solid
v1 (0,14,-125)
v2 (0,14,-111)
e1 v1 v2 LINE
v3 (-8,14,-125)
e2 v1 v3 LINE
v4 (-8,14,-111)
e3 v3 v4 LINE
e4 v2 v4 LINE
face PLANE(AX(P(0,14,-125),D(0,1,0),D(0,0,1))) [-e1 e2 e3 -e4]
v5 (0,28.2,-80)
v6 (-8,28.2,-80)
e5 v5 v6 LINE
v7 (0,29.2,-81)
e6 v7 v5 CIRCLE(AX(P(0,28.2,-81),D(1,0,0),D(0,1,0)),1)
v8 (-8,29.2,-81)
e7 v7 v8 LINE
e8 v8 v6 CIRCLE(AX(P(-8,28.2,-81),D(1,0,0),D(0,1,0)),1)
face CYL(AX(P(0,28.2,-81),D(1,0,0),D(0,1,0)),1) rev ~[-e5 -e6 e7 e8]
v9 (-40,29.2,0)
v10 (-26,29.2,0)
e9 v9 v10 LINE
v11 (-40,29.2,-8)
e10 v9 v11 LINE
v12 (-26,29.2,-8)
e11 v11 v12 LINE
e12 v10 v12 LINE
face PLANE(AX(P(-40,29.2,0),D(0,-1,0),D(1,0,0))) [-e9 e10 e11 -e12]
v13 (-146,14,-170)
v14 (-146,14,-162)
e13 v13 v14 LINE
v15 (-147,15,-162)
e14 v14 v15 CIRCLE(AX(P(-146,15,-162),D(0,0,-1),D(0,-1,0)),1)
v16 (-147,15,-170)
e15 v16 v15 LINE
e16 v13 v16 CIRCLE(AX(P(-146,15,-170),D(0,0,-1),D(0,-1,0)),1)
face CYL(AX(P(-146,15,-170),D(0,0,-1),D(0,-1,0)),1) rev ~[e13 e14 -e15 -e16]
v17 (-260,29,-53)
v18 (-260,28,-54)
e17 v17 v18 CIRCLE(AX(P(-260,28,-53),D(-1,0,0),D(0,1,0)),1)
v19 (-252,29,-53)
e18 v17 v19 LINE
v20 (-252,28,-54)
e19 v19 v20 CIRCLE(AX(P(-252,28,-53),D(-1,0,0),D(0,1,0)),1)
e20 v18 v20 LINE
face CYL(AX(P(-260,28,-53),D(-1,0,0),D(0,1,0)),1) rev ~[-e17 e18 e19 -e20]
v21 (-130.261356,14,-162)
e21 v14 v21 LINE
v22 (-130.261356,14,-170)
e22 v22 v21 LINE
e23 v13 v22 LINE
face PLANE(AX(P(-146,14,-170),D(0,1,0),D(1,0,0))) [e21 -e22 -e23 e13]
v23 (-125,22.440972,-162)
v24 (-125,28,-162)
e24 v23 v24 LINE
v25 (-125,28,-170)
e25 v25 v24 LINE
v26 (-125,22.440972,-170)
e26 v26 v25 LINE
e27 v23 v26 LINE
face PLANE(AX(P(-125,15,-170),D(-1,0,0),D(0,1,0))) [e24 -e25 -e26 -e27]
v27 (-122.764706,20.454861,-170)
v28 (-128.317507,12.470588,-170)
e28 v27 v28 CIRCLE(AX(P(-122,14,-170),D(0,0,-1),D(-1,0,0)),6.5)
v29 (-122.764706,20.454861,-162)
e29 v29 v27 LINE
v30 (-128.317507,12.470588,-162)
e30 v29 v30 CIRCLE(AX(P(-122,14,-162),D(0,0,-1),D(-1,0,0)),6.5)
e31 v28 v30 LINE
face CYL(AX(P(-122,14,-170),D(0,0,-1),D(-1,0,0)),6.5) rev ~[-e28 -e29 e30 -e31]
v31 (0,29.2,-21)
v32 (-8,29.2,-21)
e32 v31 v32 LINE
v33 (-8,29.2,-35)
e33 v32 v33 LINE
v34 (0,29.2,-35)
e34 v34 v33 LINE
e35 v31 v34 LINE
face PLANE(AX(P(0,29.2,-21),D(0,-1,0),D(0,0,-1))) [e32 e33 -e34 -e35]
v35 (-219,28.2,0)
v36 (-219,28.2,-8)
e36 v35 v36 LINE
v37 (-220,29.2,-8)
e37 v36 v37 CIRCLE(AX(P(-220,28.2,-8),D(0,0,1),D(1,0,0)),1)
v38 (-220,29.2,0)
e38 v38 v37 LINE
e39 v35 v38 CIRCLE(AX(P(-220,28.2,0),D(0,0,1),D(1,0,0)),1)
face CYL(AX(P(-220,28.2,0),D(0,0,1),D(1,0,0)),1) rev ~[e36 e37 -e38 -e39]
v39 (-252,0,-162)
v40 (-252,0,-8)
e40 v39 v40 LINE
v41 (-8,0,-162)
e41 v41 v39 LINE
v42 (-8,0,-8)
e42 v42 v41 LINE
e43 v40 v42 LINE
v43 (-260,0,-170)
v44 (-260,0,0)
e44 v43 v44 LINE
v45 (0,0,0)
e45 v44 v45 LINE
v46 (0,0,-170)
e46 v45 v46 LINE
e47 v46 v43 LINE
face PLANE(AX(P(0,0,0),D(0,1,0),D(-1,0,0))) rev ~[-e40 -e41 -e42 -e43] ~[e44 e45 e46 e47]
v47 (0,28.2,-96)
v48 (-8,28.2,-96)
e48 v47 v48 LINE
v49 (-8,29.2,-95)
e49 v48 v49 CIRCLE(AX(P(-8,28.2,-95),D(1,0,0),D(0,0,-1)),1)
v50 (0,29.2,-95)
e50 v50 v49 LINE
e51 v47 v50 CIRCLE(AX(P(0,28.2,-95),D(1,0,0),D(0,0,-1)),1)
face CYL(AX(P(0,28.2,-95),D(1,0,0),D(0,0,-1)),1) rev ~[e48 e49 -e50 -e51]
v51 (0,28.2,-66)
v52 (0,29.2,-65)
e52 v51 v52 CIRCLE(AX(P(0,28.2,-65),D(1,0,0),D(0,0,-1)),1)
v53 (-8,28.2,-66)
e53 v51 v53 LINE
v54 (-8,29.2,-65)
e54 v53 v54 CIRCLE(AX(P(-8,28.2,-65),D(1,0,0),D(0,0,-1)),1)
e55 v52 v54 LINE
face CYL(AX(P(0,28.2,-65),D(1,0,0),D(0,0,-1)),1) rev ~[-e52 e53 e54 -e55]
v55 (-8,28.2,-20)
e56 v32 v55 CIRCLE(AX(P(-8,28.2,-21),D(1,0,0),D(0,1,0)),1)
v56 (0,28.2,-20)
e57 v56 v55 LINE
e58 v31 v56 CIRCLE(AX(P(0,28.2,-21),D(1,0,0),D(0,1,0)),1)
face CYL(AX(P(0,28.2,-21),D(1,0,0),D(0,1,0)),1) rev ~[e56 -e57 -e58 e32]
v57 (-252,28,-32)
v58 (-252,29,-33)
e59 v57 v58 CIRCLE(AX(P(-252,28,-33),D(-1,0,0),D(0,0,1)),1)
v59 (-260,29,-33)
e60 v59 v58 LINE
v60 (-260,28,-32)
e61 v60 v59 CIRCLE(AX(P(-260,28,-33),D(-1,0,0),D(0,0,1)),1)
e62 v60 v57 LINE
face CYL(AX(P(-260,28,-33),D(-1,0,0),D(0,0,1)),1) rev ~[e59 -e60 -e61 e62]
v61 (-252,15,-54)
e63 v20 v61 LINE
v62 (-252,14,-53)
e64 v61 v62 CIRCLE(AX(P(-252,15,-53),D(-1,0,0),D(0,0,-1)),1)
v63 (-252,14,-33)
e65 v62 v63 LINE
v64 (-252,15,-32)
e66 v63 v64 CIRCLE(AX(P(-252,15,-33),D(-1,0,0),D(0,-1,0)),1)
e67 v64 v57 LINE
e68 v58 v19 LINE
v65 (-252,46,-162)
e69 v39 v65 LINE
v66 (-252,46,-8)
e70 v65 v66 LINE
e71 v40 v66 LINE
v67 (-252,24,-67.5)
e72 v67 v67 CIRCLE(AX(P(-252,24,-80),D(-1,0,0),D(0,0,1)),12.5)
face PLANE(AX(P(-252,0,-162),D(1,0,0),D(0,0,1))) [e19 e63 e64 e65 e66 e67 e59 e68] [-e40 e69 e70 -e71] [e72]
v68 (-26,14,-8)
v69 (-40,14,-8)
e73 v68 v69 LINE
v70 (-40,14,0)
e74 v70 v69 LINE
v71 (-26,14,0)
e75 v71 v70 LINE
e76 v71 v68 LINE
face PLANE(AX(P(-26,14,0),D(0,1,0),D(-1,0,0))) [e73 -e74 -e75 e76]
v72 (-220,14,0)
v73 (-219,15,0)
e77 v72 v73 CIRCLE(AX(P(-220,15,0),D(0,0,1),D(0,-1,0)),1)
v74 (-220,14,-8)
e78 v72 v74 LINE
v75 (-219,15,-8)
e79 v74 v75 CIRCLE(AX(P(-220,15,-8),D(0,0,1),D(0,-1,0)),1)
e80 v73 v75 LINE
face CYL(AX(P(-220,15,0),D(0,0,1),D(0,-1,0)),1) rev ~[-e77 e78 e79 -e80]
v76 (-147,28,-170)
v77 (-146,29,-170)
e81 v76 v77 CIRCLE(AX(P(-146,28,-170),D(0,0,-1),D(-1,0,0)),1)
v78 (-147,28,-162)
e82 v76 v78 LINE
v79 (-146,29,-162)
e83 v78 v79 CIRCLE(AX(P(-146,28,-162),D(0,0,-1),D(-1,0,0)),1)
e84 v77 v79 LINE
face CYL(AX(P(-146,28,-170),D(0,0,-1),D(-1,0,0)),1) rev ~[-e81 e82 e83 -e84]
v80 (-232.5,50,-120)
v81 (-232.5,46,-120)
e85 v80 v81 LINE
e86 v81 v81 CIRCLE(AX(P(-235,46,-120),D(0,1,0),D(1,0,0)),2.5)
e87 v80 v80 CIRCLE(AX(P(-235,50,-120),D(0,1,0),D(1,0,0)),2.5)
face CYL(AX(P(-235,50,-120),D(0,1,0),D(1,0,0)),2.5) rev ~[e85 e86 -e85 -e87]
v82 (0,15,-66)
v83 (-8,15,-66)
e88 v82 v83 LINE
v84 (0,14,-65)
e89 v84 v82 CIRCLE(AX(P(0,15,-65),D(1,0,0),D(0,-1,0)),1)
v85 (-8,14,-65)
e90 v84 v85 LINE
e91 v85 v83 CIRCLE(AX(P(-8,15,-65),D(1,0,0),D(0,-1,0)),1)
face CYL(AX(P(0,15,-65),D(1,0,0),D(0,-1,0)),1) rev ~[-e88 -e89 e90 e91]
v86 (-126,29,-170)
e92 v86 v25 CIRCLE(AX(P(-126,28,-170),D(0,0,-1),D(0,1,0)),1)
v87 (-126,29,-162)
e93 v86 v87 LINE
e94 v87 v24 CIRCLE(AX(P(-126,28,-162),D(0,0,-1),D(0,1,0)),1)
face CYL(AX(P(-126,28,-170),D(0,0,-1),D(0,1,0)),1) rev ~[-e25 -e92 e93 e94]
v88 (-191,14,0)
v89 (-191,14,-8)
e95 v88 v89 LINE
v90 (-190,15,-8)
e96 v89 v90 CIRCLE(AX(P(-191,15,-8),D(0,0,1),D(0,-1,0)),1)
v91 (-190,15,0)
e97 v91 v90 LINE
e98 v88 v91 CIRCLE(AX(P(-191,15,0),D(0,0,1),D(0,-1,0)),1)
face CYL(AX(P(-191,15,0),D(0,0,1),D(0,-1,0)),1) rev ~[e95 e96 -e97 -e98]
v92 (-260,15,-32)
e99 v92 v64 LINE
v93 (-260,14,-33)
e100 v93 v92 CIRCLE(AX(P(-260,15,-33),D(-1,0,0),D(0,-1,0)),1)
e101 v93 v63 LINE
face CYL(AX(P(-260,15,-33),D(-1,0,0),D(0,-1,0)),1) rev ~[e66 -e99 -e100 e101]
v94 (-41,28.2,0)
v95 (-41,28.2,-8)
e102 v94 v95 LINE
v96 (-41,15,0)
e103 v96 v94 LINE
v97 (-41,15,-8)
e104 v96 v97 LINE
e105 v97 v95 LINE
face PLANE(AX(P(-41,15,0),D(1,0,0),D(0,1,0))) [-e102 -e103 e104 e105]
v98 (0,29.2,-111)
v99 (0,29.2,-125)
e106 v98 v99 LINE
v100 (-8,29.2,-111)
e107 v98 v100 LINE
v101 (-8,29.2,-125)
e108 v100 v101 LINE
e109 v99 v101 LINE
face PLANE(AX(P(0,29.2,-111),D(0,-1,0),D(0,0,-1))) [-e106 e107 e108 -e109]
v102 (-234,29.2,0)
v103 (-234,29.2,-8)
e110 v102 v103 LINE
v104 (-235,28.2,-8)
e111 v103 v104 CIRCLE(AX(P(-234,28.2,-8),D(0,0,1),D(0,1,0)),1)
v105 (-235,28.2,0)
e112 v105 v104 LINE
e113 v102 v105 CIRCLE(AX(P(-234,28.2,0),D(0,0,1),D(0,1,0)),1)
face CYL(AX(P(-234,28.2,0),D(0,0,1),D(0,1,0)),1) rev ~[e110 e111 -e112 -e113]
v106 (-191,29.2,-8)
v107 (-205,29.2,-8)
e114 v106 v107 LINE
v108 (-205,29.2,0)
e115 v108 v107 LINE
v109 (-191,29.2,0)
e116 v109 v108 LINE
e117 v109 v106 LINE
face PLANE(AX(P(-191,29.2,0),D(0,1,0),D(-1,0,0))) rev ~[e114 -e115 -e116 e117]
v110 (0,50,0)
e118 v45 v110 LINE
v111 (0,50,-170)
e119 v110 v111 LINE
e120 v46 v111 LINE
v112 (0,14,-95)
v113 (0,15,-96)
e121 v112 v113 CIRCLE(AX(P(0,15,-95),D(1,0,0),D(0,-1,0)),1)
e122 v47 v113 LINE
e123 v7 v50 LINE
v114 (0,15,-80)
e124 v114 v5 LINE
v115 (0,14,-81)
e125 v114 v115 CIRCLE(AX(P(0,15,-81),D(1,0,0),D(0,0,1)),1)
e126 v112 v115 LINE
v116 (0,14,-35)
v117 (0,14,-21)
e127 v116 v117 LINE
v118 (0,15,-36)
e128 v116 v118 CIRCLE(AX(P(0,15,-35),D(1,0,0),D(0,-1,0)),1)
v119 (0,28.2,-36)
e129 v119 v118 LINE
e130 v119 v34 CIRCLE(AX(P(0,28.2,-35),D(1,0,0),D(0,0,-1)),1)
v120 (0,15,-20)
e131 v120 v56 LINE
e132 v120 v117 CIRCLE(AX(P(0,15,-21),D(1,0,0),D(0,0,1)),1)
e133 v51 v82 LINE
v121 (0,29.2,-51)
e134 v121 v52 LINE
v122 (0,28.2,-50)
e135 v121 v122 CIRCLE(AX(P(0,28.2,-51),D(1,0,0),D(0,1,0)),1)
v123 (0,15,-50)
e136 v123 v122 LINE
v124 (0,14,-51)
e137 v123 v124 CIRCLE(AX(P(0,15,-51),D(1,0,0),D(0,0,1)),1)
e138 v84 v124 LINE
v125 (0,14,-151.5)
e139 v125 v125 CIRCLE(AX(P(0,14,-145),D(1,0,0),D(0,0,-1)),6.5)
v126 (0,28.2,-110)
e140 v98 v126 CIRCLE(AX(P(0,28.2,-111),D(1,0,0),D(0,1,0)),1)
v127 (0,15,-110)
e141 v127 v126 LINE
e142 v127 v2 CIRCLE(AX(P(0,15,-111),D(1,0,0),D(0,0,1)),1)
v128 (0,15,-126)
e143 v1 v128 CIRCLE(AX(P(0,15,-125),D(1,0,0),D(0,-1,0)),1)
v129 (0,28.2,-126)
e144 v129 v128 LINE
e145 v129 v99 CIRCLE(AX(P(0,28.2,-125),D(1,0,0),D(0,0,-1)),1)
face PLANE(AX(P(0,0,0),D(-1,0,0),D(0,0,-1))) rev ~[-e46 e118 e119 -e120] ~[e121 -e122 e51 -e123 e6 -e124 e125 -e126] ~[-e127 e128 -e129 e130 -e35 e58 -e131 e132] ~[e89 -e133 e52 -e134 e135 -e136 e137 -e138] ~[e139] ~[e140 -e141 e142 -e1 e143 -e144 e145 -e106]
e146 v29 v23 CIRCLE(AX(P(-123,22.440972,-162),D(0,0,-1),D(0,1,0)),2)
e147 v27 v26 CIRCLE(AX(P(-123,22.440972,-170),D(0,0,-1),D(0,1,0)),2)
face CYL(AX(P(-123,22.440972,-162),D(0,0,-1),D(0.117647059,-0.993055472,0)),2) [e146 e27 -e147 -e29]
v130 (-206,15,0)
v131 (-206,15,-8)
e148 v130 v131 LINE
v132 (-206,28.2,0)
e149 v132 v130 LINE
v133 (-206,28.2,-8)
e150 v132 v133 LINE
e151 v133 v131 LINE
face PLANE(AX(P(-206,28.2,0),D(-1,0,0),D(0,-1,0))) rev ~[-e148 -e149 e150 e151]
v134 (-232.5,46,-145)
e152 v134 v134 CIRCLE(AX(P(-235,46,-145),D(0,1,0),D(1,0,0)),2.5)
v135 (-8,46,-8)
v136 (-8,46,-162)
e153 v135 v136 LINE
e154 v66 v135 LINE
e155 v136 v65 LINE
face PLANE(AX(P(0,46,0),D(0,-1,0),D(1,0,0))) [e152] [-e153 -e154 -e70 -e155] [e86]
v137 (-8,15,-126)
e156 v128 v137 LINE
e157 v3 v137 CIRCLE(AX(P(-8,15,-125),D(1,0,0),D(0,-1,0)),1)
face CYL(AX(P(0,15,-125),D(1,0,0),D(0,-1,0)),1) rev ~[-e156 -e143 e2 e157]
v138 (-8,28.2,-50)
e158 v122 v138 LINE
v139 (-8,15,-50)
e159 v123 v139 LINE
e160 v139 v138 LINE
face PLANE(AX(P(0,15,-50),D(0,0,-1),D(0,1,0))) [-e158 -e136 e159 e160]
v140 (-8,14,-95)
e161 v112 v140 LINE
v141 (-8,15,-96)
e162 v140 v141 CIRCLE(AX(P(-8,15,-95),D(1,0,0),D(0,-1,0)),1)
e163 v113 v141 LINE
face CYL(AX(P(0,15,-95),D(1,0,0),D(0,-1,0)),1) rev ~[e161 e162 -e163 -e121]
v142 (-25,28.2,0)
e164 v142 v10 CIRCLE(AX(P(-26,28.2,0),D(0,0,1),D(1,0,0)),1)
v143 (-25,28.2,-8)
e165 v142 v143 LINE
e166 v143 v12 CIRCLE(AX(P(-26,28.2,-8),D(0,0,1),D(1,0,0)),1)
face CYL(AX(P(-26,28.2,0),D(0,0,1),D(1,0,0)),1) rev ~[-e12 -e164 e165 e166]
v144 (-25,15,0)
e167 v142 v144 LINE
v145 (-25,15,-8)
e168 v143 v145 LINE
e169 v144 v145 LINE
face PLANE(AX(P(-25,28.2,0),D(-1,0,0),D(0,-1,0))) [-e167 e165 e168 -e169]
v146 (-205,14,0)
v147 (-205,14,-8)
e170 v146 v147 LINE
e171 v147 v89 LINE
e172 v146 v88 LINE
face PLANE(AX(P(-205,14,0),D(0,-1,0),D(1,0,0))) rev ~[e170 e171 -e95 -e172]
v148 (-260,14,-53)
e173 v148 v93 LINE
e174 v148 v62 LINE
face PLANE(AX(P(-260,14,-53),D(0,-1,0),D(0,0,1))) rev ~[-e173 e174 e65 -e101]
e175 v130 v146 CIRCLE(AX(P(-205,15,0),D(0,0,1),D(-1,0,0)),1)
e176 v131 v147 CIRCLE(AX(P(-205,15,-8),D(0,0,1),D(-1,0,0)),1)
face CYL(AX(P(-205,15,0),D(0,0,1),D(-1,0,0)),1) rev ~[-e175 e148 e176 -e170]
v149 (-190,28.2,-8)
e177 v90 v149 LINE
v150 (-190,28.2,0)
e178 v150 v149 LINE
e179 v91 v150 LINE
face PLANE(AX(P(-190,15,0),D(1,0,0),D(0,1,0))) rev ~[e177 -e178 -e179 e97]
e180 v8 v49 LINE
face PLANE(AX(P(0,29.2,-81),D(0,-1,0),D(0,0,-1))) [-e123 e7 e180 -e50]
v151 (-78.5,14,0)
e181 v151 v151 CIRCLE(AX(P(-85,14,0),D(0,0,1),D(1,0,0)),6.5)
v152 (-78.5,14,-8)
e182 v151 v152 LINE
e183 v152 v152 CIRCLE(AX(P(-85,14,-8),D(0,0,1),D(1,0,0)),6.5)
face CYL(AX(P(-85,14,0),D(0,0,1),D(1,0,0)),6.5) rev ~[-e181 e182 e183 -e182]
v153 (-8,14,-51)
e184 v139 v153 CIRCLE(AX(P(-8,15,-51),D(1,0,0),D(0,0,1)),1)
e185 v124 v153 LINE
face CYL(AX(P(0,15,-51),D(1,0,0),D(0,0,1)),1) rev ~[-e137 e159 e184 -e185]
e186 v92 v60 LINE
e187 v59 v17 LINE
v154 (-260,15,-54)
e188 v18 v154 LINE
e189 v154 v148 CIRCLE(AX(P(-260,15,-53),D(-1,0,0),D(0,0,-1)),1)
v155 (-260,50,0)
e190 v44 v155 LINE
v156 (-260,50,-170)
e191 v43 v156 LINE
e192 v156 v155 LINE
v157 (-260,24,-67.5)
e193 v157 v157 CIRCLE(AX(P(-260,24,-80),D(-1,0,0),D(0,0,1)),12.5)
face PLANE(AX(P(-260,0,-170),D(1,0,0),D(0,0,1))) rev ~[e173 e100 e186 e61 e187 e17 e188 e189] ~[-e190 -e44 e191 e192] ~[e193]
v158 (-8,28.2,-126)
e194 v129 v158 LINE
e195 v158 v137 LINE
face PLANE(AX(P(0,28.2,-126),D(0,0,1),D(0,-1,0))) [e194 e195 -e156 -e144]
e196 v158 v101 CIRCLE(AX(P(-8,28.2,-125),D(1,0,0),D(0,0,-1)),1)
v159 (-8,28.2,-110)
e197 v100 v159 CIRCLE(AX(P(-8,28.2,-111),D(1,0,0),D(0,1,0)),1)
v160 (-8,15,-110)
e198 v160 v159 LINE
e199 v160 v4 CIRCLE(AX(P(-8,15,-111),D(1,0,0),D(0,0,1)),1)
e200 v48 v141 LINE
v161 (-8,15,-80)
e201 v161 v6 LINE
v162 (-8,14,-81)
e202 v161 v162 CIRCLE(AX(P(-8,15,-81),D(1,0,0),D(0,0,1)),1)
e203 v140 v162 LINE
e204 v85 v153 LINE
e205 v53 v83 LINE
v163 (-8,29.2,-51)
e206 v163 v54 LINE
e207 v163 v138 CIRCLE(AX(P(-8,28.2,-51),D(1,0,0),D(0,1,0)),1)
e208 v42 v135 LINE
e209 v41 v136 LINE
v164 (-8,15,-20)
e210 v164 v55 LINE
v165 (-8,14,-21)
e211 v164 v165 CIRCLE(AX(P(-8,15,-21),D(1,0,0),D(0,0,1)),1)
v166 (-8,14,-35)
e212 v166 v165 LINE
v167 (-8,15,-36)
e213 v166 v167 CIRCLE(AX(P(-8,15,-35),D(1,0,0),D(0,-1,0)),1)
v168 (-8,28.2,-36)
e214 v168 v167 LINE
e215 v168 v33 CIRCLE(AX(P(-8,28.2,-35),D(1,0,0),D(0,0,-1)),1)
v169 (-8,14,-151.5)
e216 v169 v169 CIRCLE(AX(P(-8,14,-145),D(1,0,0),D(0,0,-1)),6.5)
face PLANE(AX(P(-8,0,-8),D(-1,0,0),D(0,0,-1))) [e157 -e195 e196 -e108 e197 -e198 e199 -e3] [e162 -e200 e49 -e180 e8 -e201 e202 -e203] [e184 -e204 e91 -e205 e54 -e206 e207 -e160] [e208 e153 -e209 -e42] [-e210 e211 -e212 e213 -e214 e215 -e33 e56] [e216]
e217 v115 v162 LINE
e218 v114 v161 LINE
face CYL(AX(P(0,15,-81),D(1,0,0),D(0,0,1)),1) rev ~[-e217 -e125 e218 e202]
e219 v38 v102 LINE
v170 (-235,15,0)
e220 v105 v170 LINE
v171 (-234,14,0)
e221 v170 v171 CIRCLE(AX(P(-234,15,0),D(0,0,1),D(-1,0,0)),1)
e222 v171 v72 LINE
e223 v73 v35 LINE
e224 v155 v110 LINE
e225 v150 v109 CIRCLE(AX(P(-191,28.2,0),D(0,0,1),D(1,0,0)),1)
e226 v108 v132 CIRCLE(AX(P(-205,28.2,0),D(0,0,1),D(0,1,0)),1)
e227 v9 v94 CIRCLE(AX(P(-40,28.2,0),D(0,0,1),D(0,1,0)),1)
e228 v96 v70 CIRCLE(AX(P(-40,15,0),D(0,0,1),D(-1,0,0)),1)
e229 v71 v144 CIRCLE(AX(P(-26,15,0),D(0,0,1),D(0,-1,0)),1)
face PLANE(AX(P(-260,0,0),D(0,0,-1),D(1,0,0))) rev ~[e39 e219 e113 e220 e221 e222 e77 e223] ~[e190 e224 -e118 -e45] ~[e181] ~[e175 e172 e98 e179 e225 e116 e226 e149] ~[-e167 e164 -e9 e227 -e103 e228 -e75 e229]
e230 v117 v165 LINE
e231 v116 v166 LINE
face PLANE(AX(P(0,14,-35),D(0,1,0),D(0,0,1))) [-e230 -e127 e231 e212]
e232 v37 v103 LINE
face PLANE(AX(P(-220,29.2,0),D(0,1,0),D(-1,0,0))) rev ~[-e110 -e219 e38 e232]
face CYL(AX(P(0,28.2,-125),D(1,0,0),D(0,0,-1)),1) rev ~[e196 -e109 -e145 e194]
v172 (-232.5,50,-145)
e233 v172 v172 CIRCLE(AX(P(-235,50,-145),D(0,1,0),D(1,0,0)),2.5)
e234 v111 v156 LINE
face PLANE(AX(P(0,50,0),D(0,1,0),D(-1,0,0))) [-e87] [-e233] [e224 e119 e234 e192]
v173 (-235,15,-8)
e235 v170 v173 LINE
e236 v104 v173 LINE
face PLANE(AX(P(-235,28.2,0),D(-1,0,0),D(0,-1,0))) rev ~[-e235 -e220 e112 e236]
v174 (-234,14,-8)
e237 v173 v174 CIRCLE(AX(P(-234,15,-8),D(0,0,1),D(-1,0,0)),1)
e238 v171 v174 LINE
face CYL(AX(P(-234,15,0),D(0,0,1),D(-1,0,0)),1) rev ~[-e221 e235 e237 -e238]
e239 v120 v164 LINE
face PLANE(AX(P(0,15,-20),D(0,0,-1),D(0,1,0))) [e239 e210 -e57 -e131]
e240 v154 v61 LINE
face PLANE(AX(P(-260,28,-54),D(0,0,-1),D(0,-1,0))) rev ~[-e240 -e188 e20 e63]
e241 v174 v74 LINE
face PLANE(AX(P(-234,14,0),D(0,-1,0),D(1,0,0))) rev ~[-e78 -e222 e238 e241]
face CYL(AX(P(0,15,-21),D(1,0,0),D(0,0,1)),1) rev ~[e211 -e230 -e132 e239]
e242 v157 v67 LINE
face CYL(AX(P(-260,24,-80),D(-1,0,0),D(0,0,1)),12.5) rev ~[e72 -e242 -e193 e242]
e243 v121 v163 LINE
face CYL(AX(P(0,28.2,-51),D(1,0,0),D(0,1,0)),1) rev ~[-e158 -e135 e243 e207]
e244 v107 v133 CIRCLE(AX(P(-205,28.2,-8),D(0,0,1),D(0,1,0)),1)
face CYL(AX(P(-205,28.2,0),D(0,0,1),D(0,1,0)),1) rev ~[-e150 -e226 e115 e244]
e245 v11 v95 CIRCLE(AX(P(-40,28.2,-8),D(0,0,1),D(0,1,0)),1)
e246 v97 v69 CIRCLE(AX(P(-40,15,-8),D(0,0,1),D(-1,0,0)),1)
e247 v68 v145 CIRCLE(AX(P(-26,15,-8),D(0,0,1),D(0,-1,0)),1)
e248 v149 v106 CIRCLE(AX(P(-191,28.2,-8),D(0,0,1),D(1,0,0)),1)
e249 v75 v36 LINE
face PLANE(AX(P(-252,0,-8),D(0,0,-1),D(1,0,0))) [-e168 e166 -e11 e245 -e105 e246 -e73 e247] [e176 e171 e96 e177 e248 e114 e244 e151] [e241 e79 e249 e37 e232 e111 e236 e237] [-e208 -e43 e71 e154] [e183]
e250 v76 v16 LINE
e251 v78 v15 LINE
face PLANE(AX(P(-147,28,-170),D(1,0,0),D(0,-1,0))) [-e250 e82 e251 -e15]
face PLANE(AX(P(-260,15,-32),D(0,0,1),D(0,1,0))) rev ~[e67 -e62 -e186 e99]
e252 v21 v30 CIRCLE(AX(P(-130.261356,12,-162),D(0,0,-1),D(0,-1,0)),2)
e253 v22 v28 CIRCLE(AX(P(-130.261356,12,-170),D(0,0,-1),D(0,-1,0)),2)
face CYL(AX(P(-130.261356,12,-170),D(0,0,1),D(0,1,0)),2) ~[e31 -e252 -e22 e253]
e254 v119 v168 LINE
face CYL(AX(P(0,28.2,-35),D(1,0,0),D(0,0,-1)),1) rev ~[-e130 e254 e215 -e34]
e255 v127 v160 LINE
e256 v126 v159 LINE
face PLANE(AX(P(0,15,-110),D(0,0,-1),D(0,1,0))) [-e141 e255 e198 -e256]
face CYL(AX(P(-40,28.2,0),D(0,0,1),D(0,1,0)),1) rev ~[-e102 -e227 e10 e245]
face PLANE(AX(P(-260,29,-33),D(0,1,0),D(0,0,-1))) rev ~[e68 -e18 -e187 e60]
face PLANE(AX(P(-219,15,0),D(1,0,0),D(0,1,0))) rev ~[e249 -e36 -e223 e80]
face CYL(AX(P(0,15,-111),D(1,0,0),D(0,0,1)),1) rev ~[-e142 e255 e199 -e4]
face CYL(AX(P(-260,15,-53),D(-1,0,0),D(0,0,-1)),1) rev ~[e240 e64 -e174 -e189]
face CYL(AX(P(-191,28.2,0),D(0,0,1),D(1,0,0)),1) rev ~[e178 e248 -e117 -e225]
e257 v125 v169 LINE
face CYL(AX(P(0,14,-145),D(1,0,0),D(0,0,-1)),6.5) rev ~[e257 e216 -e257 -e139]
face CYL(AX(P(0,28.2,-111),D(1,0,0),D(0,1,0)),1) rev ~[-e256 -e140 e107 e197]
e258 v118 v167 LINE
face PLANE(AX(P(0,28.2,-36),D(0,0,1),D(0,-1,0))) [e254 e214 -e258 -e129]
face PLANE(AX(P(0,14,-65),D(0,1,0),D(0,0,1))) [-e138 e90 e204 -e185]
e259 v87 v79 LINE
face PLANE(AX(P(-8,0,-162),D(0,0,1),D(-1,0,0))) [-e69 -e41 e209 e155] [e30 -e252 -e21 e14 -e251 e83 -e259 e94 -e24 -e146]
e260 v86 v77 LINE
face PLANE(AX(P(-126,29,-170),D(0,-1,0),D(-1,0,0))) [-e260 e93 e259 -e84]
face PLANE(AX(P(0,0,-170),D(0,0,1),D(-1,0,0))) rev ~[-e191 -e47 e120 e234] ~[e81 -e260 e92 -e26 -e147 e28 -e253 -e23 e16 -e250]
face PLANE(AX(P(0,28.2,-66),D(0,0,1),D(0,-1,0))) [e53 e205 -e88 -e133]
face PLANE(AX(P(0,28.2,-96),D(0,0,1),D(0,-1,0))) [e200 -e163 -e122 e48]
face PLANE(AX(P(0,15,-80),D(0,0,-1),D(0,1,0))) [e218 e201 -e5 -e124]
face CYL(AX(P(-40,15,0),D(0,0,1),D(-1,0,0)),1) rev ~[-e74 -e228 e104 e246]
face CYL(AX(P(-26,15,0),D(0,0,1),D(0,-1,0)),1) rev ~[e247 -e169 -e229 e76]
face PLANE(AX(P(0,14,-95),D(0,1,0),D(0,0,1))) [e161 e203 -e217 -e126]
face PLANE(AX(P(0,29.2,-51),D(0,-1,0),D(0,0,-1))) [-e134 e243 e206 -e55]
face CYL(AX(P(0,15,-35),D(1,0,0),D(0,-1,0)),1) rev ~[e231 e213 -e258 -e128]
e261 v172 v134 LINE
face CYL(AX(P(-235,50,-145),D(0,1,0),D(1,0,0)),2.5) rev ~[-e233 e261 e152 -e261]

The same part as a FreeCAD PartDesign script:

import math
import FreeCAD as App
import Part
import Sketcher
from FreeCAD import Vector
Q = App.Units.Quantity


def edges_at(feature, points):
    """Names of the edges that pass closest to the given points."""
    edges = feature.Shape.Edges
    near = lambda p: min(range(len(edges)), key=lambda i: edges[i].distToShape(Part.Vertex(*p))[0])
    return sorted({f"Edge{near(p) + 1}" for p in points})


def add_polygon(sketch, points):
    """Adds a closed chain of lines whose ends are joined by coincident constraints."""
    first, n = sketch.GeometryCount, len(points)
    for a, b in zip(points, points[1:] + points[:1]):
        sketch.addGeometry(Part.LineSegment(App.Vector(*a, 0), App.Vector(*b, 0)), False)
    for i in range(n):
        sketch.addConstraint(Sketcher.Constraint("Coincident", first + i, 2, first + (i + 1) % n, 1))

doc = App.newDocument("Part")
body = doc.addObject("PartDesign::Body", "Body")

# Sketch on XZ plane
sketch1 = body.newObject("Sketcher::SketchObject", "Sketch")
sketch1.AttachmentSupport = (doc.getObject("XZ_Plane"), [""])
sketch1.MapMode = "FlatFace"
add_polygon(sketch1, [(0, 0), (0, -170), (-260, -170), (-260, 0)])  # lines 0-3
sketch1.addConstraint(Sketcher.Constraint("Vertical", 0))
sketch1.addConstraint(Sketcher.Constraint("Horizontal", 1))
sketch1.addConstraint(Sketcher.Constraint("Vertical", 2))
sketch1.addConstraint(Sketcher.Constraint("Horizontal", 3))
sketch1.addConstraint(Sketcher.Constraint("Coincident", 3, 2, -1, 1))
sketch1.addConstraint(Sketcher.Constraint("DistanceX", 1, 2, 1, 1, Q("260 mm")))
sketch1.addConstraint(Sketcher.Constraint("DistanceY", 0, 2, 0, 1, Q("170 mm")))
pad1 = body.newObject("PartDesign::Pad", "Pad")
pad1.Profile = sketch1
pad1.Length = 50
pad1.Reversed = True

# Sketch on YZ plane
sketch2 = body.newObject("Sketcher::SketchObject", "Sketch001")
sketch2.AttachmentSupport = (doc.getObject("YZ_Plane"), [""])
sketch2.MapMode = "FlatFace"
sketch2.addGeometry(Part.LineSegment(Vector(14, -21, 0), Vector(14, -35, 0)), False)
sketch2.addGeometry(Part.ArcOfCircle(Part.Circle(Vector(15, -35, 0), Vector(0, 0, 1), 1), math.radians(180), math.radians(270)), False)
sketch2.addGeometry(Part.LineSegment(Vector(15, -36, 0), Vector(28.2, -36, 0)), False)
sketch2.addGeometry(Part.ArcOfCircle(Part.Circle(Vector(28.2, -35, 0), Vector(0, 0, 1), 1), math.radians(-90), math.radians(0)), False)
sketch2.addGeometry(Part.LineSegment(Vector(29.2, -35, 0), Vector(29.2, -21, 0)), False)
sketch2.addGeometry(Part.ArcOfCircle(Part.Circle(Vector(28.2, -21, 0), Vector(0, 0, 1), 1), math.radians(0), math.radians(90)), False)
sketch2.addGeometry(Part.LineSegment(Vector(28.2, -20, 0), Vector(15, -20, 0)), False)
sketch2.addGeometry(Part.ArcOfCircle(Part.Circle(Vector(15, -21, 0), Vector(0, 0, 1), 1), math.radians(90), math.radians(180)), False)
sketch2.addGeometry(Part.LineSegment(Vector(14, -51, 0), Vector(14, -65, 0)), False)
sketch2.addGeometry(Part.ArcOfCircle(Part.Circle(Vector(15, -65, 0), Vector(0, 0, 1), 1), math.radians(180), math.radians(270)), False)
sketch2.addGeometry(Part.LineSegment(Vector(15, -66, 0), Vector(28.2, -66, 0)), False)
sketch2.addGeometry(Part.ArcOfCircle(Part.Circle(Vector(28.2, -65, 0), Vector(0, 0, 1), 1), math.radians(-90), math.radians(0)), False)
sketch2.addGeometry(Part.LineSegment(Vector(29.2, -65, 0), Vector(29.2, -51, 0)), False)
sketch2.addGeometry(Part.ArcOfCircle(Part.Circle(Vector(28.2, -51, 0), Vector(0, 0, 1), 1), math.radians(0), math.radians(90)), False)
sketch2.addGeometry(Part.LineSegment(Vector(28.2, -50, 0), Vector(15, -50, 0)), False)
sketch2.addGeometry(Part.ArcOfCircle(Part.Circle(Vector(15, -51, 0), Vector(0, 0, 1), 1), math.radians(90), math.radians(180)), False)
sketch2.addGeometry(Part.LineSegment(Vector(14, -81, 0), Vector(14, -95, 0)), False)
sketch2.addGeometry(Part.ArcOfCircle(Part.Circle(Vector(15, -95, 0), Vector(0, 0, 1), 1), math.radians(180), math.radians(270)), False)
sketch2.addGeometry(Part.LineSegment(Vector(15, -96, 0), Vector(28.2, -96, 0)), False)
sketch2.addGeometry(Part.ArcOfCircle(Part.Circle(Vector(28.2, -95, 0), Vector(0, 0, 1), 1), math.radians(-90), math.radians(0)), False)
sketch2.addGeometry(Part.LineSegment(Vector(29.2, -95, 0), Vector(29.2, -81, 0)), False)
sketch2.addGeometry(Part.ArcOfCircle(Part.Circle(Vector(28.2, -81, 0), Vector(0, 0, 1), 1), math.radians(0), math.radians(90)), False)
sketch2.addGeometry(Part.LineSegment(Vector(28.2, -80, 0), Vector(15, -80, 0)), False)
sketch2.addGeometry(Part.ArcOfCircle(Part.Circle(Vector(15, -81, 0), Vector(0, 0, 1), 1), math.radians(90), math.radians(180)), False)
sketch2.addGeometry(Part.LineSegment(Vector(14, -111, 0), Vector(14, -125, 0)), False)
sketch2.addGeometry(Part.ArcOfCircle(Part.Circle(Vector(15, -125, 0), Vector(0, 0, 1), 1), math.radians(180), math.radians(270)), False)
sketch2.addGeometry(Part.LineSegment(Vector(15, -126, 0), Vector(28.2, -126, 0)), False)
sketch2.addGeometry(Part.ArcOfCircle(Part.Circle(Vector(28.2, -125, 0), Vector(0, 0, 1), 1), math.radians(-90), math.radians(0)), False)
sketch2.addGeometry(Part.LineSegment(Vector(29.2, -125, 0), Vector(29.2, -111, 0)), False)
sketch2.addGeometry(Part.ArcOfCircle(Part.Circle(Vector(28.2, -111, 0), Vector(0, 0, 1), 1), math.radians(0), math.radians(90)), False)
sketch2.addGeometry(Part.LineSegment(Vector(28.2, -110, 0), Vector(15, -110, 0)), False)
sketch2.addGeometry(Part.ArcOfCircle(Part.Circle(Vector(15, -111, 0), Vector(0, 0, 1), 1), math.radians(90), math.radians(180)), False)
sketch2.addConstraint(Sketcher.Constraint("Tangent", 0, 2, 1, 1))
sketch2.addConstraint(Sketcher.Constraint("Tangent", 1, 2, 2, 1))
sketch2.addConstraint(Sketcher.Constraint("Tangent", 2, 2, 3, 1))
sketch2.addConstraint(Sketcher.Constraint("Tangent", 3, 2, 4, 1))
sketch2.addConstraint(Sketcher.Constraint("Tangent", 4, 2, 5, 1))
sketch2.addConstraint(Sketcher.Constraint("Tangent", 5, 2, 6, 1))
sketch2.addConstraint(Sketcher.Constraint("Tangent", 6, 2, 7, 1))
sketch2.addConstraint(Sketcher.Constraint("Tangent", 7, 2, 0, 1))
sketch2.addConstraint(Sketcher.Constraint("Tangent", 8, 2, 9, 1))
sketch2.addConstraint(Sketcher.Constraint("Tangent", 9, 2, 10, 1))
sketch2.addConstraint(Sketcher.Constraint("Tangent", 10, 2, 11, 1))
sketch2.addConstraint(Sketcher.Constraint("Tangent", 11, 2, 12, 1))
sketch2.addConstraint(Sketcher.Constraint("Tangent", 12, 2, 13, 1))
sketch2.addConstraint(Sketcher.Constraint("Tangent", 13, 2, 14, 1))
sketch2.addConstraint(Sketcher.Constraint("Tangent", 14, 2, 15, 1))
sketch2.addConstraint(Sketcher.Constraint("Tangent", 15, 2, 8, 1))
sketch2.addConstraint(Sketcher.Constraint("Tangent", 16, 2, 17, 1))
sketch2.addConstraint(Sketcher.Constraint("Tangent", 17, 2, 18, 1))
sketch2.addConstraint(Sketcher.Constraint("Tangent", 18, 2, 19, 1))
sketch2.addConstraint(Sketcher.Constraint("Tangent", 19, 2, 20, 1))
sketch2.addConstraint(Sketcher.Constraint("Tangent", 20, 2, 21, 1))
sketch2.addConstraint(Sketcher.Constraint("Tangent", 21, 2, 22, 1))
sketch2.addConstraint(Sketcher.Constraint("Tangent", 22, 2, 23, 1))
sketch2.addConstraint(Sketcher.Constraint("Tangent", 23, 2, 16, 1))
sketch2.addConstraint(Sketcher.Constraint("Tangent", 24, 2, 25, 1))
sketch2.addConstraint(Sketcher.Constraint("Tangent", 25, 2, 26, 1))
sketch2.addConstraint(Sketcher.Constraint("Tangent", 26, 2, 27, 1))
sketch2.addConstraint(Sketcher.Constraint("Tangent", 27, 2, 28, 1))
sketch2.addConstraint(Sketcher.Constraint("Tangent", 28, 2, 29, 1))
sketch2.addConstraint(Sketcher.Constraint("Tangent", 29, 2, 30, 1))
sketch2.addConstraint(Sketcher.Constraint("Tangent", 30, 2, 31, 1))
sketch2.addConstraint(Sketcher.Constraint("Tangent", 31, 2, 24, 1))
sketch2.addConstraint(Sketcher.Constraint("Vertical", 0))
sketch2.addConstraint(Sketcher.Constraint("Horizontal", 2))
sketch2.addConstraint(Sketcher.Constraint("Vertical", 4))
sketch2.addConstraint(Sketcher.Constraint("Horizontal", 6))
sketch2.addConstraint(Sketcher.Constraint("Vertical", 8))
sketch2.addConstraint(Sketcher.Constraint("Horizontal", 10))
sketch2.addConstraint(Sketcher.Constraint("Vertical", 12))
sketch2.addConstraint(Sketcher.Constraint("Horizontal", 14))
sketch2.addConstraint(Sketcher.Constraint("Vertical", 16))
sketch2.addConstraint(Sketcher.Constraint("Horizontal", 18))
sketch2.addConstraint(Sketcher.Constraint("Vertical", 20))
sketch2.addConstraint(Sketcher.Constraint("Horizontal", 22))
sketch2.addConstraint(Sketcher.Constraint("Vertical", 24))
sketch2.addConstraint(Sketcher.Constraint("Horizontal", 26))
sketch2.addConstraint(Sketcher.Constraint("Vertical", 28))
sketch2.addConstraint(Sketcher.Constraint("Horizontal", 30))
sketch2.addConstraint(Sketcher.Constraint("Equal", 1, 3))
sketch2.addConstraint(Sketcher.Constraint("Equal", 3, 5))
sketch2.addConstraint(Sketcher.Constraint("Equal", 5, 7))
sketch2.addConstraint(Sketcher.Constraint("Equal", 7, 9))
sketch2.addConstraint(Sketcher.Constraint("Equal", 9, 11))
sketch2.addConstraint(Sketcher.Constraint("Equal", 11, 13))
sketch2.addConstraint(Sketcher.Constraint("Equal", 13, 15))
sketch2.addConstraint(Sketcher.Constraint("Equal", 15, 17))
sketch2.addConstraint(Sketcher.Constraint("Equal", 17, 19))
sketch2.addConstraint(Sketcher.Constraint("Equal", 19, 21))
sketch2.addConstraint(Sketcher.Constraint("Equal", 21, 23))
sketch2.addConstraint(Sketcher.Constraint("Equal", 23, 25))
sketch2.addConstraint(Sketcher.Constraint("Equal", 25, 27))
sketch2.addConstraint(Sketcher.Constraint("Equal", 27, 29))
sketch2.addConstraint(Sketcher.Constraint("Equal", 29, 31))
sketch2.addConstraint(Sketcher.Constraint("Vertical", 7, 3, 9, 3))
sketch2.addConstraint(Sketcher.Constraint("Vertical", 5, 3, 11, 3))
sketch2.addConstraint(Sketcher.Constraint("Vertical", 15, 3, 17, 3))
sketch2.addConstraint(Sketcher.Constraint("Vertical", 13, 3, 19, 3))
sketch2.addConstraint(Sketcher.Constraint("Vertical", 23, 3, 25, 3))
sketch2.addConstraint(Sketcher.Constraint("Vertical", 21, 3, 27, 3))
sketch2.addConstraint(Sketcher.Constraint("Equal", 4, 8))
sketch2.addConstraint(Sketcher.Constraint("Equal", 12, 16))
sketch2.addConstraint(Sketcher.Constraint("Equal", 20, 24))
sketch2.addConstraint(Sketcher.Constraint("Radius", 1, Q("1 mm")))
sketch2.addConstraint(Sketcher.Constraint("DistanceY", 0, 2, 0, 1, Q("14 mm")))
sketch2.addConstraint(Sketcher.Constraint("DistanceX", -1, 1, 0, 2, Q("14 mm")))
sketch2.addConstraint(Sketcher.Constraint("DistanceY", 5, 2, -1, 1, Q("20 mm")))
sketch2.addConstraint(Sketcher.Constraint("DistanceY", 9, 3, 1, 3, Q("30 mm")))
sketch2.addConstraint(Sketcher.Constraint("DistanceY", 17, 3, 9, 3, Q("30 mm")))
sketch2.addConstraint(Sketcher.Constraint("DistanceY", 25, 3, 17, 3, Q("30 mm")))
sketch2.addConstraint(Sketcher.Constraint("DistanceX", 2, 1, 2, 2, Q("13.2 mm")))
pocket1 = body.newObject("PartDesign::Pocket", "Pocket")
pocket1.Profile = sketch2
pocket1.Length = 20

# Sketch on XY plane
sketch3 = body.newObject("Sketcher::SketchObject", "Sketch002")
sketch3.AttachmentSupport = (doc.getObject("XY_Plane"), [""])
sketch3.MapMode = "FlatFace"
sketch3.addGeometry(Part.ArcOfCircle(Part.Circle(Vector(-220, 28.2, 0), Vector(0, 0, 1), 1), math.radians(0), math.radians(90)), False)
sketch3.addGeometry(Part.LineSegment(Vector(-220, 29.2, 0), Vector(-234, 29.2, 0)), False)
sketch3.addGeometry(Part.ArcOfCircle(Part.Circle(Vector(-234, 28.2, 0), Vector(0, 0, 1), 1), math.radians(90), math.radians(180)), False)
sketch3.addGeometry(Part.LineSegment(Vector(-235, 28.2, 0), Vector(-235, 15, 0)), False)
sketch3.addGeometry(Part.ArcOfCircle(Part.Circle(Vector(-234, 15, 0), Vector(0, 0, 1), 1), math.radians(180), math.radians(270)), False)
sketch3.addGeometry(Part.LineSegment(Vector(-234, 14, 0), Vector(-220, 14, 0)), False)
sketch3.addGeometry(Part.ArcOfCircle(Part.Circle(Vector(-220, 15, 0), Vector(0, 0, 1), 1), math.radians(-90), math.radians(0)), False)
sketch3.addGeometry(Part.LineSegment(Vector(-219, 15, 0), Vector(-219, 28.2, 0)), False)
sketch3.addGeometry(Part.ArcOfCircle(Part.Circle(Vector(-191, 28.2, 0), Vector(0, 0, 1), 1), math.radians(0), math.radians(90)), False)
sketch3.addGeometry(Part.LineSegment(Vector(-191, 29.2, 0), Vector(-205, 29.2, 0)), False)
sketch3.addGeometry(Part.ArcOfCircle(Part.Circle(Vector(-205, 28.2, 0), Vector(0, 0, 1), 1), math.radians(90), math.radians(180)), False)
sketch3.addGeometry(Part.LineSegment(Vector(-206, 28.2, 0), Vector(-206, 15, 0)), False)
sketch3.addGeometry(Part.ArcOfCircle(Part.Circle(Vector(-205, 15, 0), Vector(0, 0, 1), 1), math.radians(180), math.radians(270)), False)
sketch3.addGeometry(Part.LineSegment(Vector(-205, 14, 0), Vector(-191, 14, 0)), False)
sketch3.addGeometry(Part.ArcOfCircle(Part.Circle(Vector(-191, 15, 0), Vector(0, 0, 1), 1), math.radians(-90), math.radians(0)), False)
sketch3.addGeometry(Part.LineSegment(Vector(-190, 15, 0), Vector(-190, 28.2, 0)), False)
sketch3.addConstraint(Sketcher.Constraint("Tangent", 0, 2, 1, 1))
sketch3.addConstraint(Sketcher.Constraint("Tangent", 1, 2, 2, 1))
sketch3.addConstraint(Sketcher.Constraint("Tangent", 2, 2, 3, 1))
sketch3.addConstraint(Sketcher.Constraint("Tangent", 3, 2, 4, 1))
sketch3.addConstraint(Sketcher.Constraint("Tangent", 4, 2, 5, 1))
sketch3.addConstraint(Sketcher.Constraint("Tangent", 5, 2, 6, 1))
sketch3.addConstraint(Sketcher.Constraint("Tangent", 6, 2, 7, 1))
sketch3.addConstraint(Sketcher.Constraint("Tangent", 7, 2, 0, 1))
sketch3.addConstraint(Sketcher.Constraint("Tangent", 8, 2, 9, 1))
sketch3.addConstraint(Sketcher.Constraint("Tangent", 9, 2, 10, 1))
sketch3.addConstraint(Sketcher.Constraint("Tangent", 10, 2, 11, 1))
sketch3.addConstraint(Sketcher.Constraint("Tangent", 11, 2, 12, 1))
sketch3.addConstraint(Sketcher.Constraint("Tangent", 12, 2, 13, 1))
sketch3.addConstraint(Sketcher.Constraint("Tangent", 13, 2, 14, 1))
sketch3.addConstraint(Sketcher.Constraint("Tangent", 14, 2, 15, 1))
sketch3.addConstraint(Sketcher.Constraint("Tangent", 15, 2, 8, 1))
sketch3.addConstraint(Sketcher.Constraint("Horizontal", 1))
sketch3.addConstraint(Sketcher.Constraint("Vertical", 3))
sketch3.addConstraint(Sketcher.Constraint("Horizontal", 5))
sketch3.addConstraint(Sketcher.Constraint("Vertical", 7))
sketch3.addConstraint(Sketcher.Constraint("Horizontal", 9))
sketch3.addConstraint(Sketcher.Constraint("Vertical", 11))
sketch3.addConstraint(Sketcher.Constraint("Horizontal", 13))
sketch3.addConstraint(Sketcher.Constraint("Vertical", 15))
sketch3.addConstraint(Sketcher.Constraint("Equal", 0, 2))
sketch3.addConstraint(Sketcher.Constraint("Equal", 2, 4))
sketch3.addConstraint(Sketcher.Constraint("Equal", 4, 6))
sketch3.addConstraint(Sketcher.Constraint("Equal", 6, 8))
sketch3.addConstraint(Sketcher.Constraint("Equal", 8, 10))
sketch3.addConstraint(Sketcher.Constraint("Equal", 10, 12))
sketch3.addConstraint(Sketcher.Constraint("Equal", 12, 14))
sketch3.addConstraint(Sketcher.Constraint("Horizontal", 2, 3, 8, 3))
sketch3.addConstraint(Sketcher.Constraint("Horizontal", 6, 3, 12, 3))
sketch3.addConstraint(Sketcher.Constraint("Equal", 5, 9))
sketch3.addConstraint(Sketcher.Constraint("Radius", 0, Q("1 mm")))
sketch3.addConstraint(Sketcher.Constraint("DistanceX", 1, 2, 1, 1, Q("14 mm")))
sketch3.addConstraint(Sketcher.Constraint("DistanceY", -1, 1, 4, 2, Q("14 mm")))
sketch3.addConstraint(Sketcher.Constraint("DistanceX", 6, 2, 12, 3, Q("14 mm")))
sketch3.addConstraint(Sketcher.Constraint("DistanceY", 3, 2, 3, 1, Q("13.2 mm")))
sketch3.addConstraint(Sketcher.Constraint("DistanceX", 0, 3, -1, 1, Q("220 mm")))
pocket2 = body.newObject("PartDesign::Pocket", "Pocket001")
pocket2.Profile = sketch3
pocket2.Length = 20

# Sketch on XZ plane
sketch4 = body.newObject("Sketcher::SketchObject", "Sketch003")
sketch4.AttachmentSupport = (doc.getObject("XZ_Plane"), [""])
sketch4.MapMode = "FlatFace"
sketch4.AttachmentOffset = App.Placement(Vector(0, 0, -50), App.Rotation())
sketch4.addGeometry(Part.Circle(Vector(-235, -120, 0), Vector(0, 0, 1), 2.5), False)
sketch4.addGeometry(Part.Circle(Vector(-235, -145, 0), Vector(0, 0, 1), 2.5), False)
sketch4.addConstraint(Sketcher.Constraint("Equal", 0, 1))
sketch4.addConstraint(Sketcher.Constraint("Vertical", 0, 3, 1, 3))
sketch4.addConstraint(Sketcher.Constraint("Diameter", 0, Q("5 mm")))
sketch4.addConstraint(Sketcher.Constraint("DistanceY", 1, 3, 0, 3, Q("25 mm")))
sketch4.addConstraint(Sketcher.Constraint("DistanceX", 0, 3, -1, 1, Q("235 mm")))
sketch4.addConstraint(Sketcher.Constraint("DistanceY", 0, 3, -1, 1, Q("120 mm")))
pocket3 = body.newObject("PartDesign::Pocket", "Pocket002")
pocket3.Profile = sketch4
pocket3.Length = 20
pocket3.Reversed = True

# Sketch on XY plane
sketch5 = body.newObject("Sketcher::SketchObject", "Sketch004")
sketch5.AttachmentSupport = (doc.getObject("XY_Plane"), [""])
sketch5.MapMode = "FlatFace"
sketch5.AttachmentOffset = App.Placement(Vector(0, 0, -170), App.Rotation())
sketch5.addGeometry(Part.LineSegment(Vector(-126, 14, 0), Vector(-146, 14, 0)), False)
sketch5.addGeometry(Part.ArcOfCircle(Part.Circle(Vector(-146, 15, 0), Vector(0, 0, 1), 1), math.radians(180), math.radians(270)), False)
sketch5.addGeometry(Part.LineSegment(Vector(-147, 15, 0), Vector(-147, 28, 0)), False)
sketch5.addGeometry(Part.ArcOfCircle(Part.Circle(Vector(-146, 28, 0), Vector(0, 0, 1), 1), math.radians(90), math.radians(180)), False)
sketch5.addGeometry(Part.LineSegment(Vector(-146, 29, 0), Vector(-126, 29, 0)), False)
sketch5.addGeometry(Part.ArcOfCircle(Part.Circle(Vector(-126, 28, 0), Vector(0, 0, 1), 1), math.radians(0), math.radians(90)), False)
sketch5.addGeometry(Part.LineSegment(Vector(-125, 28, 0), Vector(-125, 15, 0)), False)
sketch5.addGeometry(Part.ArcOfCircle(Part.Circle(Vector(-126, 15, 0), Vector(0, 0, 1), 1), math.radians(-90), math.radians(0)), False)
sketch5.addConstraint(Sketcher.Constraint("Tangent", 0, 2, 1, 2))
sketch5.addConstraint(Sketcher.Constraint("Tangent", 1, 1, 2, 1))
sketch5.addConstraint(Sketcher.Constraint("Tangent", 2, 2, 3, 2))
sketch5.addConstraint(Sketcher.Constraint("Tangent", 3, 1, 4, 1))
sketch5.addConstraint(Sketcher.Constraint("Tangent", 4, 2, 5, 2))
sketch5.addConstraint(Sketcher.Constraint("Tangent", 5, 1, 6, 1))
sketch5.addConstraint(Sketcher.Constraint("Tangent", 6, 2, 7, 2))
sketch5.addConstraint(Sketcher.Constraint("Tangent", 7, 1, 0, 1))
sketch5.addConstraint(Sketcher.Constraint("Horizontal", 0))
sketch5.addConstraint(Sketcher.Constraint("Vertical", 2))
sketch5.addConstraint(Sketcher.Constraint("Horizontal", 4))
sketch5.addConstraint(Sketcher.Constraint("Vertical", 6))
sketch5.addConstraint(Sketcher.Constraint("Equal", 1, 3))
sketch5.addConstraint(Sketcher.Constraint("Equal", 3, 5))
sketch5.addConstraint(Sketcher.Constraint("Equal", 5, 7))
sketch5.addConstraint(Sketcher.Constraint("Radius", 1, Q("1 mm")))
sketch5.addConstraint(Sketcher.Constraint("DistanceY", -1, 1, 1, 3, Q("15 mm")))
sketch5.addConstraint(Sketcher.Constraint("DistanceX", 5, 1, -1, 1, Q("125 mm")))
sketch5.addConstraint(Sketcher.Constraint("DistanceY", 0, 2, 3, 3, Q("14 mm")))
sketch5.addConstraint(Sketcher.Constraint("DistanceX", 0, 2, 0, 1, Q("20 mm")))
pocket4 = body.newObject("PartDesign::Pocket", "Pocket003")
pocket4.Profile = sketch5
pocket4.Length = 10
pocket4.Reversed = True

# Sketch on XY plane
sketch6 = body.newObject("Sketcher::SketchObject", "Sketch005")
sketch6.AttachmentSupport = (doc.getObject("XY_Plane"), [""])
sketch6.MapMode = "FlatFace"
sketch6.addGeometry(Part.LineSegment(Vector(-26, 29.2, 0), Vector(-40, 29.2, 0)), False)
sketch6.addGeometry(Part.ArcOfCircle(Part.Circle(Vector(-40, 28.2, 0), Vector(0, 0, 1), 1), math.radians(90), math.radians(180)), False)
sketch6.addGeometry(Part.LineSegment(Vector(-41, 28.2, 0), Vector(-41, 15, 0)), False)
sketch6.addGeometry(Part.ArcOfCircle(Part.Circle(Vector(-40, 15, 0), Vector(0, 0, 1), 1), math.radians(180), math.radians(270)), False)
sketch6.addGeometry(Part.LineSegment(Vector(-40, 14, 0), Vector(-26, 14, 0)), False)
sketch6.addGeometry(Part.ArcOfCircle(Part.Circle(Vector(-26, 15, 0), Vector(0, 0, 1), 1), math.radians(-90), math.radians(0)), False)
sketch6.addGeometry(Part.LineSegment(Vector(-25, 15, 0), Vector(-25, 28.2, 0)), False)
sketch6.addGeometry(Part.ArcOfCircle(Part.Circle(Vector(-26, 28.2, 0), Vector(0, 0, 1), 1), math.radians(0), math.radians(90)), False)
sketch6.addConstraint(Sketcher.Constraint("Tangent", 0, 2, 1, 1))
sketch6.addConstraint(Sketcher.Constraint("Tangent", 1, 2, 2, 1))
sketch6.addConstraint(Sketcher.Constraint("Tangent", 2, 2, 3, 1))
sketch6.addConstraint(Sketcher.Constraint("Tangent", 3, 2, 4, 1))
sketch6.addConstraint(Sketcher.Constraint("Tangent", 4, 2, 5, 1))
sketch6.addConstraint(Sketcher.Constraint("Tangent", 5, 2, 6, 1))
sketch6.addConstraint(Sketcher.Constraint("Tangent", 6, 2, 7, 1))
sketch6.addConstraint(Sketcher.Constraint("Tangent", 7, 2, 0, 1))
sketch6.addConstraint(Sketcher.Constraint("Horizontal", 0))
sketch6.addConstraint(Sketcher.Constraint("Vertical", 2))
sketch6.addConstraint(Sketcher.Constraint("Horizontal", 4))
sketch6.addConstraint(Sketcher.Constraint("Vertical", 6))
sketch6.addConstraint(Sketcher.Constraint("Equal", 1, 3))
sketch6.addConstraint(Sketcher.Constraint("Equal", 3, 5))
sketch6.addConstraint(Sketcher.Constraint("Equal", 5, 7))
sketch6.addConstraint(Sketcher.Constraint("Radius", 1, Q("1 mm")))
sketch6.addConstraint(Sketcher.Constraint("DistanceX", 0, 2, 0, 1, Q("14 mm")))
sketch6.addConstraint(Sketcher.Constraint("DistanceY", -1, 1, 3, 2, Q("14 mm")))
sketch6.addConstraint(Sketcher.Constraint("DistanceX", 5, 2, -1, 1, Q("25 mm")))
sketch6.addConstraint(Sketcher.Constraint("DistanceY", 2, 2, 2, 1, Q("13.2 mm")))
pocket5 = body.newObject("PartDesign::Pocket", "Pocket004")
pocket5.Profile = sketch6
pocket5.Length = 10

# Sketch on XY plane
sketch7 = body.newObject("Sketcher::SketchObject", "Sketch006")
sketch7.AttachmentSupport = (doc.getObject("XY_Plane"), [""])
sketch7.MapMode = "FlatFace"
sketch7.AttachmentOffset = App.Placement(Vector(0, 0, -170), App.Rotation())
sketch7.addGeometry(Part.Circle(Vector(-122, 14, 0), Vector(0, 0, 1), 6), False)
sketch7.addConstraint(Sketcher.Constraint("Diameter", 0, Q("13 mm")))
sketch7.addConstraint(Sketcher.Constraint("DistanceY", -1, 1, 0, 3, Q("14 mm")))
sketch7.addConstraint(Sketcher.Constraint("DistanceX", 0, 3, -1, 1, Q("122 mm")))
pocket6 = body.newObject("PartDesign::Pocket", "Pocket005")
pocket6.Profile = sketch7
pocket6.Length = 20
pocket6.Reversed = True

# Sketch on YZ plane
sketch8 = body.newObject("Sketcher::SketchObject", "Sketch007")
sketch8.AttachmentSupport = (doc.getObject("YZ_Plane"), [""])
sketch8.MapMode = "FlatFace"
sketch8.addGeometry(Part.Circle(Vector(14, -145, 0), Vector(0, 0, 1), 6), False)
sketch8.addConstraint(Sketcher.Constraint("Diameter", 0, Q("13 mm")))
sketch8.addConstraint(Sketcher.Constraint("DistanceX", -1, 1, 0, 3, Q("14 mm")))
sketch8.addConstraint(Sketcher.Constraint("DistanceY", 0, 3, -1, 1, Q("145 mm")))
pocket7 = body.newObject("PartDesign::Pocket", "Pocket006")
pocket7.Profile = sketch8
pocket7.Length = 20

# Sketch on XY plane
sketch9 = body.newObject("Sketcher::SketchObject", "Sketch008")
sketch9.AttachmentSupport = (doc.getObject("XY_Plane"), [""])
sketch9.MapMode = "FlatFace"
sketch9.addGeometry(Part.Circle(Vector(-85, 14, 0), Vector(0, 0, 1), 6), False)
sketch9.addConstraint(Sketcher.Constraint("Diameter", 0, Q("13 mm")))
sketch9.addConstraint(Sketcher.Constraint("DistanceX", 0, 3, -1, 1, Q("85 mm")))
sketch9.addConstraint(Sketcher.Constraint("DistanceY", -1, 1, 0, 3, Q("14 mm")))
pocket8 = body.newObject("PartDesign::Pocket", "Pocket007")
pocket8.Profile = sketch9
pocket8.Length = 20

# Sketch on YZ plane
sketch10 = body.newObject("Sketcher::SketchObject", "Sketch009")
sketch10.AttachmentSupport = (doc.getObject("YZ_Plane"), [""])
sketch10.MapMode = "FlatFace"
sketch10.AttachmentOffset = App.Placement(Vector(0, 0, -260), App.Rotation())
sketch10.addGeometry(Part.ArcOfCircle(Part.Circle(Vector(28, -33, 0), Vector(0, 0, 1), 1), math.radians(0), math.radians(90)), False)
sketch10.addGeometry(Part.LineSegment(Vector(29, -33, 0), Vector(29, -53, 0)), False)
sketch10.addGeometry(Part.ArcOfCircle(Part.Circle(Vector(28, -53, 0), Vector(0, 0, 1), 1), math.radians(-90), math.radians(0)), False)
sketch10.addGeometry(Part.LineSegment(Vector(28, -54, 0), Vector(15, -54, 0)), False)
sketch10.addGeometry(Part.ArcOfCircle(Part.Circle(Vector(15, -53, 0), Vector(0, 0, 1), 1), math.radians(180), math.radians(270)), False)
sketch10.addGeometry(Part.LineSegment(Vector(14, -53, 0), Vector(14, -33, 0)), False)
sketch10.addGeometry(Part.ArcOfCircle(Part.Circle(Vector(15, -33, 0), Vector(0, 0, 1), 1), math.radians(90), math.radians(180)), False)
sketch10.addGeometry(Part.LineSegment(Vector(15, -32, 0), Vector(28, -32, 0)), False)
sketch10.addConstraint(Sketcher.Constraint("Tangent", 0, 1, 1, 1))
sketch10.addConstraint(Sketcher.Constraint("Tangent", 1, 2, 2, 2))
sketch10.addConstraint(Sketcher.Constraint("Tangent", 2, 1, 3, 1))
sketch10.addConstraint(Sketcher.Constraint("Tangent", 3, 2, 4, 2))
sketch10.addConstraint(Sketcher.Constraint("Tangent", 4, 1, 5, 1))
sketch10.addConstraint(Sketcher.Constraint("Tangent", 5, 2, 6, 2))
sketch10.addConstraint(Sketcher.Constraint("Tangent", 6, 1, 7, 1))
sketch10.addConstraint(Sketcher.Constraint("Tangent", 7, 2, 0, 2))
sketch10.addConstraint(Sketcher.Constraint("Vertical", 1))
sketch10.addConstraint(Sketcher.Constraint("Horizontal", 3))
sketch10.addConstraint(Sketcher.Constraint("Vertical", 5))
sketch10.addConstraint(Sketcher.Constraint("Horizontal", 7))
sketch10.addConstraint(Sketcher.Constraint("Equal", 0, 2))
sketch10.addConstraint(Sketcher.Constraint("Equal", 2, 4))
sketch10.addConstraint(Sketcher.Constraint("Equal", 4, 6))
sketch10.addConstraint(Sketcher.Constraint("Radius", 0, Q("1 mm")))
sketch10.addConstraint(Sketcher.Constraint("DistanceX", -1, 1, 4, 3, Q("15 mm")))
sketch10.addConstraint(Sketcher.Constraint("DistanceY", 6, 1, -1, 1, Q("32 mm")))
sketch10.addConstraint(Sketcher.Constraint("DistanceX", 6, 3, 0, 1, Q("14 mm")))
sketch10.addConstraint(Sketcher.Constraint("DistanceY", 1, 2, 1, 1, Q("20 mm")))
pocket9 = body.newObject("PartDesign::Pocket", "Pocket008")
pocket9.Profile = sketch10
pocket9.Length = 20
pocket9.Reversed = True

# Sketch on XZ plane
sketch11 = body.newObject("Sketcher::SketchObject", "Sketch010")
sketch11.AttachmentSupport = (doc.getObject("XZ_Plane"), [""])
sketch11.MapMode = "FlatFace"
add_polygon(sketch11, [(-252, -162), (-8, -162), (-8, -8), (-252, -8)])  # lines 0-3
sketch11.addConstraint(Sketcher.Constraint("Horizontal", 0))
sketch11.addConstraint(Sketcher.Constraint("Vertical", 1))
sketch11.addConstraint(Sketcher.Constraint("Horizontal", 2))
sketch11.addConstraint(Sketcher.Constraint("Vertical", 3))
sketch11.addConstraint(Sketcher.Constraint("DistanceX", 0, 2, -1, 1, Q("8 mm")))
sketch11.addConstraint(Sketcher.Constraint("DistanceY", 1, 2, -1, 1, Q("8 mm")))
sketch11.addConstraint(Sketcher.Constraint("DistanceX", 0, 1, 0, 2, Q("244 mm")))
sketch11.addConstraint(Sketcher.Constraint("DistanceY", 1, 1, 1, 2, Q("154 mm")))
pocket10 = body.newObject("PartDesign::Pocket", "Pocket009")
pocket10.Profile = sketch11
pocket10.Length = 46
doc.recompute()

fillet = body.newObject("PartDesign::Fillet", "Fillet")
fillet.Base = (pocket10, edges_at(pocket10, [(-128.5, 14, -166), (-125, 19.766, -166)]))
fillet.Radius = 2

# Sketch on YZ plane
sketch12 = body.newObject("Sketcher::SketchObject", "Sketch011")
sketch12.AttachmentSupport = (doc.getObject("YZ_Plane"), [""])
sketch12.MapMode = "FlatFace"
sketch12.AttachmentOffset = App.Placement(Vector(0, 0, -260), App.Rotation())
sketch12.addGeometry(Part.Circle(Vector(24, -80, 0), Vector(0, 0, 1), 12), False)
sketch12.addConstraint(Sketcher.Constraint("Diameter", 0, Q("25 mm")))
sketch12.addConstraint(Sketcher.Constraint("DistanceX", -1, 1, 0, 3, Q("24 mm")))
sketch12.addConstraint(Sketcher.Constraint("DistanceY", 0, 3, -1, 1, Q("80 mm")))
pocket11 = body.newObject("PartDesign::Pocket", "Pocket010")
pocket11.Profile = sketch12
pocket11.Length = 20
pocket11.Reversed = True

doc.recompute()
